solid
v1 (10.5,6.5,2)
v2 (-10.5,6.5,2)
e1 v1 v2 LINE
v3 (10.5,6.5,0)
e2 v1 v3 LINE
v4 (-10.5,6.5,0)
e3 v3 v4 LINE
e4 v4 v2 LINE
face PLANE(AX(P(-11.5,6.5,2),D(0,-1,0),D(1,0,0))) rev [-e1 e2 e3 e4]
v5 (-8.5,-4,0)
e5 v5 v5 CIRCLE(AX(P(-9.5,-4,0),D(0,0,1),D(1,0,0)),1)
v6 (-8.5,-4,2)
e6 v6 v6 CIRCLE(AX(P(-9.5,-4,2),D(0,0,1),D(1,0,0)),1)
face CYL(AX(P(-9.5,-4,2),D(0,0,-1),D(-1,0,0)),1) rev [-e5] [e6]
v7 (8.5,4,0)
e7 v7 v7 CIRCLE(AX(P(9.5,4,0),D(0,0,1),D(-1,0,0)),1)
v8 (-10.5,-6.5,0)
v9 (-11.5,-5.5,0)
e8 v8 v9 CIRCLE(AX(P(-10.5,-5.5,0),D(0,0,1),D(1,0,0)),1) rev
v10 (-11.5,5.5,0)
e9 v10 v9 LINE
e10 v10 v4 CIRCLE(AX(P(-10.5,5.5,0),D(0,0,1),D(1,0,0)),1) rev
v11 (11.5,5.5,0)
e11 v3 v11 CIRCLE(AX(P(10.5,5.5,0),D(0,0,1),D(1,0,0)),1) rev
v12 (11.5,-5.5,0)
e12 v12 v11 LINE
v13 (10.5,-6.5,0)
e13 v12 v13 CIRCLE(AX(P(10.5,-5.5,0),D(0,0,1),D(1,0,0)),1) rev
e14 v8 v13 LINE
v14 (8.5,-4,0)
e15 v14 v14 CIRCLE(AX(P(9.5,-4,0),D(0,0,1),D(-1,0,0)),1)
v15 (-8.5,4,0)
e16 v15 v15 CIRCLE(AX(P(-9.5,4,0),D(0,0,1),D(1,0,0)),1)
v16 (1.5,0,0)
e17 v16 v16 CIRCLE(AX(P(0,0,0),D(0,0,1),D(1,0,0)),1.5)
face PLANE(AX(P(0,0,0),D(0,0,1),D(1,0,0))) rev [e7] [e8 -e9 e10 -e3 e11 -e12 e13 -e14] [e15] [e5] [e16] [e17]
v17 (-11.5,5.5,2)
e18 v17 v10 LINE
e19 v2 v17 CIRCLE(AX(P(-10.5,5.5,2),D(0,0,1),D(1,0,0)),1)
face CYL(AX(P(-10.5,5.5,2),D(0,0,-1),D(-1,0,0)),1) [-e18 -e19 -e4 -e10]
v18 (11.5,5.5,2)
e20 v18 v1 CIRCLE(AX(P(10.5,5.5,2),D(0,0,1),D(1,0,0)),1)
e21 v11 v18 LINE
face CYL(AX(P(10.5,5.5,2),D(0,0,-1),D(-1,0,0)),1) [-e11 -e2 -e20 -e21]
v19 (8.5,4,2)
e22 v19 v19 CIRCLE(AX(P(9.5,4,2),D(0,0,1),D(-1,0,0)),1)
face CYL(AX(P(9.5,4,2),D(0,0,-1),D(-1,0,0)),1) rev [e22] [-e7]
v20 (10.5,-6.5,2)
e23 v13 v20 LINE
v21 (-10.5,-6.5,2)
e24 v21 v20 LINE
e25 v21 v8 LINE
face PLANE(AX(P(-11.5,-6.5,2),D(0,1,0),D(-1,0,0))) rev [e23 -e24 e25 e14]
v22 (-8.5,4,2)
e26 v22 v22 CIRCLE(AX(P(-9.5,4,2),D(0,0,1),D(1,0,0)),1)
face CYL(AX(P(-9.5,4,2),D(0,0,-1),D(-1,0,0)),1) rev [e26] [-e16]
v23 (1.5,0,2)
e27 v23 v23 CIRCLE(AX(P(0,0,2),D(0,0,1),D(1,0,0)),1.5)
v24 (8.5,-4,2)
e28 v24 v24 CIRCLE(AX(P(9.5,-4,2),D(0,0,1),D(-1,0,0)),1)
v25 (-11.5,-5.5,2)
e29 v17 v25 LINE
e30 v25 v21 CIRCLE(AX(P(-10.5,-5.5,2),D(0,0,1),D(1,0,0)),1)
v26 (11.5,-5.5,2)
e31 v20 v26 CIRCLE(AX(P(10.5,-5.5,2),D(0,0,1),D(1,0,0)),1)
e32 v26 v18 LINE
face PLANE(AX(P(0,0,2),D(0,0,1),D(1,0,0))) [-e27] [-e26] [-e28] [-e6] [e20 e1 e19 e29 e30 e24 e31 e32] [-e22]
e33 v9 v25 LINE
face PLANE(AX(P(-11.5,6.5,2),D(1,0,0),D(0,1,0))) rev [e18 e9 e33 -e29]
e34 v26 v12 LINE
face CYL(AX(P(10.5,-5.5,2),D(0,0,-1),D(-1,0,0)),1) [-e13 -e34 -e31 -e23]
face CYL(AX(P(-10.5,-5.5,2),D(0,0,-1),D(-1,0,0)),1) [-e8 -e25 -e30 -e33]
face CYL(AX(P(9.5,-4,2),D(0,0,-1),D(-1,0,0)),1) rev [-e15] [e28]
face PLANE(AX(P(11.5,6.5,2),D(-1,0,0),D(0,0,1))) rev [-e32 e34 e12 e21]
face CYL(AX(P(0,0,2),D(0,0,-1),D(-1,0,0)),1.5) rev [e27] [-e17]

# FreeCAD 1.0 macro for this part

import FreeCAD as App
import Part
import Sketcher


def edges_at(feature, points):
    """Names of the edges that pass closest to the given points."""
    edges = feature.Shape.Edges
    near = lambda p: min(range(len(edges)), key=lambda i: edges[i].distToShape(Part.Vertex(*p))[0])
    return sorted({f"Edge{near(p) + 1}" for p in points})


def add_polygon(sketch, points):
    """Adds a closed chain of lines whose ends are joined by coincident constraints."""
    first, n = sketch.GeometryCount, len(points)
    for a, b in zip(points, points[1:] + points[:1]):
        sketch.addGeometry(Part.LineSegment(App.Vector(*a, 0), App.Vector(*b, 0)), False)
    for i in range(n):
        sketch.addConstraint(Sketcher.Constraint("Coincident", first + i, 2, first + (i + 1) % n, 1))

doc = App.newDocument("Part")
body = doc.addObject("PartDesign::Body", "Body")

# Sketch on XY plane
sketch1 = body.newObject("Sketcher::SketchObject", "Sketch")
sketch1.AttachmentSupport = (doc.getObject("XY_Plane"), [""])
sketch1.MapMode = "FlatFace"
add_polygon(sketch1, [(-11.5, 6.5), (-11.5, -6.5), (11.5, -6.5), (11.5, 6.5)])  # lines 0-3
sketch1.addGeometry(Part.Circle(App.Vector(-9.5, -4, 0), App.Vector(0, 0, 1), 1), False)  # 4
sketch1.addGeometry(Part.Circle(App.Vector(9.5, -4, 0), App.Vector(0, 0, 1), 1), False)  # 5
sketch1.addGeometry(Part.Circle(App.Vector(-9.5, 4, 0), App.Vector(0, 0, 1), 1), False)  # 6
sketch1.addGeometry(Part.Circle(App.Vector(0, 0, 0), App.Vector(0, 0, 1), 1.5), False)  # 7
sketch1.addGeometry(Part.Circle(App.Vector(9.5, 4, 0), App.Vector(0, 0, 1), 1), False)  # 8
sketch1.addConstraint(Sketcher.Constraint("Vertical", 0))
sketch1.addConstraint(Sketcher.Constraint("Horizontal", 1))
sketch1.addConstraint(Sketcher.Constraint("Vertical", 2))
sketch1.addConstraint(Sketcher.Constraint("Horizontal", 3))
sketch1.addConstraint(Sketcher.Constraint("Coincident", 7, 3, -1, 1))
sketch1.addConstraint(Sketcher.Constraint("Equal", 4, 5))
sketch1.addConstraint(Sketcher.Constraint("Equal", 5, 6))
sketch1.addConstraint(Sketcher.Constraint("Equal", 6, 8))
sketch1.addConstraint(Sketcher.Constraint("Symmetric", 5, 3, 6, 3, -1, 1))
sketch1.addConstraint(Sketcher.Constraint("Symmetric", 4, 3, 8, 3, -1, 1))
sketch1.addConstraint(Sketcher.Constraint("Symmetric", 0, 2, 2, 2, -1, 1))
sketch1.addConstraint(Sketcher.Constraint("Symmetric", 4, 3, 5, 3, -2))
sketch1.addConstraint(Sketcher.Constraint("Diameter", 4, 2.0))
sketch1.addConstraint(Sketcher.Constraint("Diameter", 7, 3.0))
sketch1.addConstraint(Sketcher.Constraint("DistanceX", 1, 1, 1, 2, 23.0))
sketch1.addConstraint(Sketcher.Constraint("DistanceY", 0, 2, 0, 1, 13.0))
sketch1.addConstraint(Sketcher.Constraint("DistanceY", 4, 3, -1, 1, 4.0))
sketch1.addConstraint(Sketcher.Constraint("DistanceX", 4, 3, 5, 3, 19.0))
pad1 = body.newObject("PartDesign::Pad", "Pad")
pad1.Profile = sketch1
pad1.Length = 2
doc.recompute()

fillet = body.newObject("PartDesign::Fillet", "Fillet")
fillet.Base = (pad1, edges_at(pad1, [
    (11.5, -6.5, 1),
    (-11.5, -6.5, 1),
    (-11.5, 6.5, 1),
    (11.5, 6.5, 1),
]))
fillet.Radius = 1

doc.recompute()
